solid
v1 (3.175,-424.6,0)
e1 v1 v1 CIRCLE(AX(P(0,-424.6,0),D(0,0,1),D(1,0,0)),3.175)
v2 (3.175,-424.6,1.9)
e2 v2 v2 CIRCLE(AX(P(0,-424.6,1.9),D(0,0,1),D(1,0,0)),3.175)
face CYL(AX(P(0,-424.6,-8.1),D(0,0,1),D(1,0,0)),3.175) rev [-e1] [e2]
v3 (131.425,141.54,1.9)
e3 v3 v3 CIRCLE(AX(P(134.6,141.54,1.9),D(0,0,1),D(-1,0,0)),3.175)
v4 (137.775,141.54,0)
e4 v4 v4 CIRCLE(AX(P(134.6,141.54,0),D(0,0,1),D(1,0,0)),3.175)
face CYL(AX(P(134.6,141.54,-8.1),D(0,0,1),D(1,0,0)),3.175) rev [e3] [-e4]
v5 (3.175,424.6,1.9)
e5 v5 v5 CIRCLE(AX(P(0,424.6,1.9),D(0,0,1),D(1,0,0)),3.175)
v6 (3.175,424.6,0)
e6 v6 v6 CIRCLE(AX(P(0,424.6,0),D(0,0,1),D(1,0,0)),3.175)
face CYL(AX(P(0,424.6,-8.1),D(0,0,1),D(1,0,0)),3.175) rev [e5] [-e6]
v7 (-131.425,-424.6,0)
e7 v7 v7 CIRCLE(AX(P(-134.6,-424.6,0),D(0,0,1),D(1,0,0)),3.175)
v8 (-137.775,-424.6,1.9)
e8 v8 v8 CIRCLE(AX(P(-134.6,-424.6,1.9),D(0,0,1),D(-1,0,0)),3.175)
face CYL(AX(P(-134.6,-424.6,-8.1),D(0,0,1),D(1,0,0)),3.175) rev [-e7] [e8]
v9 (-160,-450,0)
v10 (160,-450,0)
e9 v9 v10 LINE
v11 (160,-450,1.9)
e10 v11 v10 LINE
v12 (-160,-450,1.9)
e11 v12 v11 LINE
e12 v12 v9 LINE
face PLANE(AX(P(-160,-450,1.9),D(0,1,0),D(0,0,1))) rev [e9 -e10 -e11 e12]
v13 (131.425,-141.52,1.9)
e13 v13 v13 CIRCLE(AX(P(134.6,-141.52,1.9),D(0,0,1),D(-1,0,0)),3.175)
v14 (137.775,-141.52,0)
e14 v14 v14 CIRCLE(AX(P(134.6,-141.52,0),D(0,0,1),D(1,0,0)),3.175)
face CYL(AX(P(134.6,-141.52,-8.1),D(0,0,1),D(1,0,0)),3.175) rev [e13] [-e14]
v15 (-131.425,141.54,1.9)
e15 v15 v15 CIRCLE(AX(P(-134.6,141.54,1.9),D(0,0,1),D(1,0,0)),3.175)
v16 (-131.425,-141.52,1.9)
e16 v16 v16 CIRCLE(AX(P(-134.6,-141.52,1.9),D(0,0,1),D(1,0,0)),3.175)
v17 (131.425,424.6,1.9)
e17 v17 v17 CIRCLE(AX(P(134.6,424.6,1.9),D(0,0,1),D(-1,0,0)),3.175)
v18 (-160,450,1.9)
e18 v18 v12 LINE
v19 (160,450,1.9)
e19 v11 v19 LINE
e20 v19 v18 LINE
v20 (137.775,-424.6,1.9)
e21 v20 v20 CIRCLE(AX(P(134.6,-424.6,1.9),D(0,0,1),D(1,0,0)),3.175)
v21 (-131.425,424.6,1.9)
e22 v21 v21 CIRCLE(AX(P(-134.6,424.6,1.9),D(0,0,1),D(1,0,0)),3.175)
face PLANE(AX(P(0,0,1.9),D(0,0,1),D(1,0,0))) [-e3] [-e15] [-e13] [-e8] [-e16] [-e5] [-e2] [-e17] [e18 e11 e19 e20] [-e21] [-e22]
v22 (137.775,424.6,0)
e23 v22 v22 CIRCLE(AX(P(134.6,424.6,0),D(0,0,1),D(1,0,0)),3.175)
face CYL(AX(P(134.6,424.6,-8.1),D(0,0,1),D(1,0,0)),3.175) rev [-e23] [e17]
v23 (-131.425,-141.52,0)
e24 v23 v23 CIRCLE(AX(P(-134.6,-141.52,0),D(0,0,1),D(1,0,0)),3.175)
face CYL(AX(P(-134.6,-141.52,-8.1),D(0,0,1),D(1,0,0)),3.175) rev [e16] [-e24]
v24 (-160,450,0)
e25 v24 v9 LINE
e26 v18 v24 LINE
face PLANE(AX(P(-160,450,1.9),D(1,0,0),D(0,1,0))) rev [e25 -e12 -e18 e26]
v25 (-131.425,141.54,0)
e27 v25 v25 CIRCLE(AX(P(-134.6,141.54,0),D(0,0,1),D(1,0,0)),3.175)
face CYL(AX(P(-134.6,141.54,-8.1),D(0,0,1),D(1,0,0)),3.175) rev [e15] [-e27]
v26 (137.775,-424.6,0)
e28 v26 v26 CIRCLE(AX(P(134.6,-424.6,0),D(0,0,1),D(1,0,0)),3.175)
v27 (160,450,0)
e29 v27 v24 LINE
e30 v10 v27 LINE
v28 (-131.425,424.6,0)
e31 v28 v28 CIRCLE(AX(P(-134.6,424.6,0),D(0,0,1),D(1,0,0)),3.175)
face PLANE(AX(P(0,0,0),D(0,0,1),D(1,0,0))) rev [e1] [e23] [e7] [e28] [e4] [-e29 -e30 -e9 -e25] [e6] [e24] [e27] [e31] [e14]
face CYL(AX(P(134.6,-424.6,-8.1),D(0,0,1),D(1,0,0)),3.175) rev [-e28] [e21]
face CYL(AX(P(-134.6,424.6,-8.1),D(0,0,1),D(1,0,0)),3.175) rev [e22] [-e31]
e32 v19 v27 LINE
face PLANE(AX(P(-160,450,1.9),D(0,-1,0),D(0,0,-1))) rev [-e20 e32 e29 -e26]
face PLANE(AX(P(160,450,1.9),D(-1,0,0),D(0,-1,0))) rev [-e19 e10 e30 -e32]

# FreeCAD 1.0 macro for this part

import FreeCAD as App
import Part
import Sketcher
from FreeCAD import Vector
Q = App.Units.Quantity


def add_polygon(sketch, points):
    """Adds a closed chain of lines whose ends are joined by coincident constraints."""
    first, n = sketch.GeometryCount, len(points)
    for a, b in zip(points, points[1:] + points[:1]):
        sketch.addGeometry(Part.LineSegment(App.Vector(*a, 0), App.Vector(*b, 0)), False)
    for i in range(n):
        sketch.addConstraint(Sketcher.Constraint("Coincident", first + i, 2, first + (i + 1) % n, 1))

doc = App.newDocument("Part")
body = doc.addObject("PartDesign::Body", "Body")

sketch1 = body.newObject("Sketcher::SketchObject", "Sketch")
sketch1.AttachmentSupport = (doc.getObject("XY_Plane"), [""])
sketch1.MapMode = "FlatFace"
add_polygon(sketch1, [(-160, 450), (-160, -450), (160, -450), (160, 450)])
sketch1.addConstraint(Sketcher.Constraint("Vertical", 0))
sketch1.addConstraint(Sketcher.Constraint("Horizontal", 1))
sketch1.addConstraint(Sketcher.Constraint("Vertical", 2))
sketch1.addConstraint(Sketcher.Constraint("Horizontal", 3))
sketch1.addConstraint(Sketcher.Constraint("Symmetric", 0, 2, 2, 2, -1, 1))
sketch1.addConstraint(Sketcher.Constraint("DistanceX", 1, 1, 1, 2, Q("320 mm")))
sketch1.addConstraint(Sketcher.Constraint("DistanceY", 0, 2, 0, 1, Q("900 mm")))
pad1 = body.newObject("PartDesign::Pad", "Pad")
pad1.Profile = sketch1
pad1.Length = 1.9

sketch2 = body.newObject("Sketcher::SketchObject", "Sketch001")
sketch2.AttachmentSupport = (doc.getObject("XY_Plane"), [""])
sketch2.MapMode = "FlatFace"
sketch2.AttachmentOffset = App.Placement(Vector(0, 0, 1.9), App.Rotation())
sketch2.addGeometry(Part.Circle(Vector(-134.6, 424.6, 0), Vector(0, 0, 1), 3.2), False)
sketch2.addGeometry(Part.Circle(Vector(134.6, 424.6, 0), Vector(0, 0, 1), 3.2), False)
sketch2.addGeometry(Part.Circle(Vector(134.6, -424.6, 0), Vector(0, 0, 1), 3.2), False)
sketch2.addGeometry(Part.Circle(Vector(-134.6, -424.6, 0), Vector(0, 0, 1), 3.2), False)
sketch2.addGeometry(Part.Circle(Vector(-134.6, 141.5, 0), Vector(0, 0, 1), 3.2), False)
sketch2.addGeometry(Part.Circle(Vector(-134.6, -141.5, 0), Vector(0, 0, 1), 3.2), False)
sketch2.addGeometry(Part.Circle(Vector(134.6, 141.5, 0), Vector(0, 0, 1), 3.2), False)
sketch2.addGeometry(Part.Circle(Vector(134.6, -141.5, 0), Vector(0, 0, 1), 3.2), False)
sketch2.addGeometry(Part.Circle(Vector(0, 424.6, 0), Vector(0, 0, 1), 3.2), False)
sketch2.addGeometry(Part.Circle(Vector(0, -424.6, 0), Vector(0, 0, 1), 3.2), False)
sketch2.addConstraint(Sketcher.Constraint("Equal", 0, 1))
sketch2.addConstraint(Sketcher.Constraint("Equal", 1, 2))
sketch2.addConstraint(Sketcher.Constraint("Equal", 2, 3))
sketch2.addConstraint(Sketcher.Constraint("Equal", 3, 4))
sketch2.addConstraint(Sketcher.Constraint("Equal", 4, 5))
sketch2.addConstraint(Sketcher.Constraint("Equal", 5, 6))
sketch2.addConstraint(Sketcher.Constraint("Equal", 6, 7))
sketch2.addConstraint(Sketcher.Constraint("Equal", 7, 8))
sketch2.addConstraint(Sketcher.Constraint("Equal", 8, 9))
sketch2.addConstraint(Sketcher.Constraint("Symmetric", 0, 3, 2, 3, -1, 1))
sketch2.addConstraint(Sketcher.Constraint("Symmetric", 1, 3, 3, 3, -1, 1))
sketch2.addConstraint(Sketcher.Constraint("Symmetric", 8, 3, 9, 3, -1, 1))
sketch2.addConstraint(Sketcher.Constraint("Symmetric", 0, 3, 1, 3, -2))
sketch2.addConstraint(Sketcher.Constraint("Symmetric", 4, 3, 6, 3, -2))
sketch2.addConstraint(Sketcher.Constraint("Symmetric", 5, 3, 7, 3, -2))
sketch2.addConstraint(Sketcher.Constraint("PointOnObject", 8, 3, -2))
sketch2.addConstraint(Sketcher.Constraint("Horizontal", 1, 3, 8, 3))
sketch2.addConstraint(Sketcher.Constraint("Vertical", 3, 3, 4, 3))
sketch2.addConstraint(Sketcher.Constraint("Vertical", 4, 3, 5, 3))
sketch2.addConstraint(Sketcher.Constraint("Diameter", 0, Q("6.35 mm")))
sketch2.addConstraint(Sketcher.Constraint("DistanceX", 0, 3, -1, 1, Q("134.6 mm")))
sketch2.addConstraint(Sketcher.Constraint("DistanceY", -1, 1, 0, 3, Q("424.6 mm")))
sketch2.addConstraint(Sketcher.Constraint("DistanceY", -1, 1, 4, 3, Q("141.54 mm")))
sketch2.addConstraint(Sketcher.Constraint("DistanceY", 5, 3, -1, 1, Q("141.52 mm")))
pocket1 = body.newObject("PartDesign::Pocket", "Pocket")
pocket1.Profile = sketch2
pocket1.Length = 10

doc.recompute()
